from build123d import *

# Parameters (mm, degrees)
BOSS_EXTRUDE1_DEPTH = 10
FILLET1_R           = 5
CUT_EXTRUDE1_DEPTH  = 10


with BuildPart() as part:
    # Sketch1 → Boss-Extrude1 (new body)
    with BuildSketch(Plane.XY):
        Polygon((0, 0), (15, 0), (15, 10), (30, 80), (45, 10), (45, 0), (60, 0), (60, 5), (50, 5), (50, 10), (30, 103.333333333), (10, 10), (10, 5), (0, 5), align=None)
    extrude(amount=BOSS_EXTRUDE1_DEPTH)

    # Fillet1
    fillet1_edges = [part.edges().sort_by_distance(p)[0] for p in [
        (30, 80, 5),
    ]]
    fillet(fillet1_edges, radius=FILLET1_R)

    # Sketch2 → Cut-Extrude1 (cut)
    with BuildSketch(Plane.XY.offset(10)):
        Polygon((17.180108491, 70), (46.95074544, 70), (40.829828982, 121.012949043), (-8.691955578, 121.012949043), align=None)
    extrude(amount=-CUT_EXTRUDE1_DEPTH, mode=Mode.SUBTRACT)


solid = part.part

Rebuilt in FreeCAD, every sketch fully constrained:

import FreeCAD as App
import Part
import Sketcher

V = App.Vector
Q = App.Units.Quantity


def edges_at(feature, points):
    """Names of the edges that pass closest to the given points."""
    edges = feature.Shape.Edges
    near = lambda p: min(range(len(edges)), key=lambda i: edges[i].distToShape(Part.Vertex(*p))[0])
    return sorted({f"Edge{near(p) + 1}" for p in points})

doc = App.newDocument("Part")
params = doc.addObject("Spreadsheet::Sheet", "Params")
for row, (alias, value) in enumerate([
    ("sketch1_width", "15 mm"),
    ("sketch1_width2", "10 mm"),
    ("pad1_length", "10 mm"),
    ("fillet_radius", "5 mm"),
    ("pocket1_length", "10 mm"),
], start=1):
    params.set(f"A{row}", alias)
    params.set(f"B{row}", "=" + value)
    params.setAlias(f"B{row}", alias)

body = doc.addObject("PartDesign::Body", "Body")

sketch1 = body.newObject("Sketcher::SketchObject", "Sketch")
sketch1.AttachmentSupport = (doc.getObject("XY_Plane"), [""])
sketch1.MapMode = "FlatFace"
sketch1.addGeometry(Part.LineSegment(V(0, 0, 0), V(15, 0, 0)), False)
sketch1.addGeometry(Part.LineSegment(V(15, 0, 0), V(15, 10, 0)), False)
sketch1.addGeometry(Part.LineSegment(V(15, 10, 0), V(30, 80, 0)), False)
sketch1.addGeometry(Part.LineSegment(V(30, 80, 0), V(45, 10, 0)), False)
sketch1.addGeometry(Part.LineSegment(V(45, 10, 0), V(45, 0, 0)), False)
sketch1.addGeometry(Part.LineSegment(V(45, 0, 0), V(60, 0, 0)), False)
sketch1.addGeometry(Part.LineSegment(V(60, 0, 0), V(60, 5, 0)), False)
sketch1.addGeometry(Part.LineSegment(V(60, 5, 0), V(50, 5, 0)), False)
sketch1.addGeometry(Part.LineSegment(V(50, 5, 0), V(50, 10, 0)), False)
sketch1.addGeometry(Part.LineSegment(V(50, 10, 0), V(30, 103, 0)), False)
sketch1.addGeometry(Part.LineSegment(V(30, 103, 0), V(10, 10, 0)), False)
sketch1.addGeometry(Part.LineSegment(V(10, 10, 0), V(10, 5, 0)), False)
sketch1.addGeometry(Part.LineSegment(V(10, 5, 0), V(0, 5, 0)), False)
sketch1.addGeometry(Part.LineSegment(V(0, 5, 0), V(0, 0, 0)), False)
sketch1.addConstraint(Sketcher.Constraint("Coincident", 0, 2, 1, 1))
sketch1.addConstraint(Sketcher.Constraint("Coincident", 1, 2, 2, 1))
sketch1.addConstraint(Sketcher.Constraint("Coincident", 2, 2, 3, 1))
sketch1.addConstraint(Sketcher.Constraint("Coincident", 3, 2, 4, 1))
sketch1.addConstraint(Sketcher.Constraint("Coincident", 4, 2, 5, 1))
sketch1.addConstraint(Sketcher.Constraint("Coincident", 5, 2, 6, 1))
sketch1.addConstraint(Sketcher.Constraint("Coincident", 6, 2, 7, 1))
sketch1.addConstraint(Sketcher.Constraint("Coincident", 7, 2, 8, 1))
sketch1.addConstraint(Sketcher.Constraint("Coincident", 8, 2, 9, 1))
sketch1.addConstraint(Sketcher.Constraint("Coincident", 9, 2, 10, 1))
sketch1.addConstraint(Sketcher.Constraint("Coincident", 10, 2, 11, 1))
sketch1.addConstraint(Sketcher.Constraint("Coincident", 11, 2, 12, 1))
sketch1.addConstraint(Sketcher.Constraint("Coincident", 12, 2, 13, 1))
sketch1.addConstraint(Sketcher.Constraint("Coincident", 13, 2, 0, 1))
sketch1.addConstraint(Sketcher.Constraint("Horizontal", 0))
sketch1.addConstraint(Sketcher.Constraint("Vertical", 1))
sketch1.addConstraint(Sketcher.Constraint("Vertical", 4))
sketch1.addConstraint(Sketcher.Constraint("Horizontal", 5))
sketch1.addConstraint(Sketcher.Constraint("Vertical", 6))
sketch1.addConstraint(Sketcher.Constraint("Horizontal", 7))
sketch1.addConstraint(Sketcher.Constraint("Vertical", 8))
sketch1.addConstraint(Sketcher.Constraint("Vertical", 11))
sketch1.addConstraint(Sketcher.Constraint("Horizontal", 12))
sketch1.addConstraint(Sketcher.Constraint("Vertical", 13))
sketch1.addConstraint(Sketcher.Constraint("Coincident", 13, 2, -1, 1))
sketch1.addConstraint(Sketcher.Constraint("PointOnObject", 4, 2, -1))
sketch1.addConstraint(Sketcher.Constraint("Parallel", 3, 9))
sketch1.addConstraint(Sketcher.Constraint("Parallel", 2, 10))
sketch1.addConstraint(Sketcher.Constraint("Horizontal", 1, 2, 3, 2))
sketch1.addConstraint(Sketcher.Constraint("Horizontal", 3, 2, 8, 2))
sketch1.addConstraint(Sketcher.Constraint("Horizontal", 8, 2, 10, 2))
sketch1.addConstraint(Sketcher.Constraint("Horizontal", 7, 2, 11, 2))
sketch1.addConstraint(Sketcher.Constraint("Vertical", 2, 2, 9, 2))
sketch1.addConstraint(Sketcher.Constraint("Equal", 0, 5))
sketch1.addConstraint(Sketcher.Constraint("Equal", 7, 12))
sketch1.addConstraint(Sketcher.Constraint("Equal", 12, 1))
sketch1.addConstraint(Sketcher.Constraint("Equal", 6, 8))
sketch1.addConstraint(Sketcher.Constraint("DistanceX", 0, 1, 0, 2, Q("15 mm")))
sketch1.addConstraint(Sketcher.Constraint("DistanceX", 7, 2, 7, 1, Q("10 mm")))
sketch1.addConstraint(Sketcher.Constraint("DistanceX", -1, 1, 2, 2, Q("30 mm")))
sketch1.addConstraint(Sketcher.Constraint("DistanceY", -1, 1, 2, 2, Q("80 mm")))
sketch1.setExpression("Constraints[37]", "Params.sketch1_width")
sketch1.setExpression("Constraints[38]", "Params.sketch1_width2")
pad1 = body.newObject("PartDesign::Pad", "Pad")
pad1.Profile = sketch1
pad1.setExpression("Length", "Params.pad1_length")
doc.recompute()

fillet = body.newObject("PartDesign::Fillet", "Fillet")
fillet.Base = (pad1, edges_at(pad1, [(30, 80, 5)]))
fillet.setExpression("Radius", "Params.fillet_radius")

sketch2 = body.newObject("Sketcher::SketchObject", "Sketch001")
sketch2.AttachmentSupport = (doc.getObject("XY_Plane"), [""])
sketch2.MapMode = "FlatFace"
sketch2.AttachmentOffset = App.Placement(V(0, 0, 10), App.Rotation())
sketch2.addGeometry(Part.LineSegment(V(17, 70, 0), V(47, 70, 0)), False)
sketch2.addGeometry(Part.LineSegment(V(47, 70, 0), V(41, 121, 0)), False)
sketch2.addGeometry(Part.LineSegment(V(41, 121, 0), V(-9, 121, 0)), False)
sketch2.addGeometry(Part.LineSegment(V(-9, 121, 0), V(17, 70, 0)), False)
sketch2.addConstraint(Sketcher.Constraint("Coincident", 0, 2, 1, 1))
sketch2.addConstraint(Sketcher.Constraint("Coincident", 1, 2, 2, 1))
sketch2.addConstraint(Sketcher.Constraint("Coincident", 2, 2, 3, 1))
sketch2.addConstraint(Sketcher.Constraint("Coincident", 3, 2, 0, 1))
sketch2.addConstraint(Sketcher.Constraint("Horizontal", 0))
sketch2.addConstraint(Sketcher.Constraint("Horizontal", 2))
sketch2.addConstraint(Sketcher.Constraint("DistanceY", -1, 1, 0, 2, Q("70 mm")))
sketch2.addConstraint(Sketcher.Constraint("DistanceX", 2, 2, 0, 2, Q("55.642701 mm")))
sketch2.addConstraint(Sketcher.Constraint("DistanceX", 0, 1, 0, 2, Q("29.770637 mm")))
sketch2.addConstraint(Sketcher.Constraint("DistanceX", 2, 2, 2, 1, Q("49.521785 mm")))
sketch2.addConstraint(Sketcher.Constraint("DistanceX", -1, 1, 1, 2, Q("40.829829 mm")))
sketch2.addConstraint(Sketcher.Constraint("DistanceY", -1, 1, 1, 2, Q("121.012949 mm")))
pocket1 = body.newObject("PartDesign::Pocket", "Pocket")
pocket1.Profile = sketch2
pocket1.setExpression("Length", "Params.pocket1_length")

doc.recompute()
